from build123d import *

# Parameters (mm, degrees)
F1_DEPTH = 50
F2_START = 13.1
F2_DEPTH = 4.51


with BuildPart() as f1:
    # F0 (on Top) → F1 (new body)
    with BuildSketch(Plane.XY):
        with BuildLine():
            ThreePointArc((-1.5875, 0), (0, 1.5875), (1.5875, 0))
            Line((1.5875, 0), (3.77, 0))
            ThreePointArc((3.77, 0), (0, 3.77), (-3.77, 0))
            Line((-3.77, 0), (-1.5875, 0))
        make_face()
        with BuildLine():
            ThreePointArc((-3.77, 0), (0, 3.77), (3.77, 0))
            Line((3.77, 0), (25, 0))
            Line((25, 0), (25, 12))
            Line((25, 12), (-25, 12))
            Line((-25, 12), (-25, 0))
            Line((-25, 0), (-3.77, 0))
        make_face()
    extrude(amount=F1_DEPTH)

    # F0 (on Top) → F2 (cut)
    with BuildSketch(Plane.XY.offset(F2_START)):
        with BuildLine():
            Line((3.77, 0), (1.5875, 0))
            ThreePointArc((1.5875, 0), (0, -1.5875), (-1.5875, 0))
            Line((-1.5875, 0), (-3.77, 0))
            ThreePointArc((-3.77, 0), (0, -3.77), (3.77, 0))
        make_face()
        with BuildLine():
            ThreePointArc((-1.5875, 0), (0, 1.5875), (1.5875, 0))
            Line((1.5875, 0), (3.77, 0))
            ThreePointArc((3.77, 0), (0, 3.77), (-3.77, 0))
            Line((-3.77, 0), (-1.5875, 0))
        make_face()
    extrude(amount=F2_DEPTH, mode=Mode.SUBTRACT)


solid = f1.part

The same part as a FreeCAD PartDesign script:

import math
import FreeCAD as App
import Part
import Sketcher

doc = App.newDocument("Part")
body = doc.addObject("PartDesign::Body", "Body")

sketch1 = doc.addObject("Sketcher::SketchObject", "Sketch")
body.addObject(sketch1)
sketch1.AttachmentSupport = (doc.XY_Plane, [""])
sketch1.MapMode = "FlatFace"
sketch1.addGeometry([
    Part.ArcOfCircle(Part.Circle(App.Vector(0, 0, 0), App.Vector(0, 0, 1), 1.6), math.radians(0), math.radians(180)),
    Part.LineSegment(App.Vector(1.6, 0, 0), App.Vector(25, 0, 0)),
    Part.LineSegment(App.Vector(25, 0, 0), App.Vector(25, 12, 0)),
    Part.LineSegment(App.Vector(25, 12, 0), App.Vector(-25, 12, 0)),
    Part.LineSegment(App.Vector(-25, 12, 0), App.Vector(-25, 0, 0)),
    Part.LineSegment(App.Vector(-25, 0, 0), App.Vector(-1.6, 0, 0)),
], False)
sketch1.addConstraint([
    Sketcher.Constraint("Coincident", 0, 1, 1, 1),
    Sketcher.Constraint("Coincident", 1, 2, 2, 1),
    Sketcher.Constraint("Coincident", 2, 2, 3, 1),
    Sketcher.Constraint("Coincident", 3, 2, 4, 1),
    Sketcher.Constraint("Coincident", 4, 2, 5, 1),
    Sketcher.Constraint("Coincident", 5, 2, 0, 2),
    Sketcher.Constraint("Horizontal", 1),
    Sketcher.Constraint("Vertical", 2),
    Sketcher.Constraint("Horizontal", 3),
    Sketcher.Constraint("Vertical", 4),
    Sketcher.Constraint("Horizontal", 5),
    Sketcher.Constraint("Coincident", 0, 3, -1, 1),
    Sketcher.Constraint("Symmetric", 1, 2, 4, 2, -1, 1),
    Sketcher.Constraint("PointOnObject", 0, 1, -1),
    Sketcher.Constraint("DistanceX", 3, 2, 3, 1, 50.0),
    Sketcher.Constraint("DistanceY", 2, 1, 2, 2, 12.0),
    Sketcher.Constraint("Radius", 0, 1.5875),
])
pad1 = doc.addObject("PartDesign::Pad", "Pad")
body.addObject(pad1)
pad1.Profile = sketch1
pad1.Length = 50

sketch2 = doc.addObject("Sketcher::SketchObject", "Sketch001")
body.addObject(sketch2)
sketch2.AttachmentSupport = (doc.XY_Plane, [""])
sketch2.MapMode = "FlatFace"
sketch2.AttachmentOffset = App.Placement(App.Vector(0, 0, 13.1), App.Rotation())
sketch2.addGeometry([
    Part.Circle(App.Vector(0, 0, 0), App.Vector(0, 0, 1), 3.8),
    Part.Circle(App.Vector(0, 0, 0), App.Vector(0, 0, 1), 1.6),
], False)
sketch2.addConstraint([
    Sketcher.Constraint("Coincident", 0, 3, -1, 1),
    Sketcher.Constraint("Coincident", 1, 3, -1, 1),
    Sketcher.Constraint("Diameter", 0, 7.54),
    Sketcher.Constraint("Diameter", 1, 3.175),
])
pocket1 = doc.addObject("PartDesign::Pocket", "Pocket")
body.addObject(pocket1)
pocket1.Profile = sketch2
pocket1.Length = 4.51
pocket1.Reversed = True

doc.recompute()
